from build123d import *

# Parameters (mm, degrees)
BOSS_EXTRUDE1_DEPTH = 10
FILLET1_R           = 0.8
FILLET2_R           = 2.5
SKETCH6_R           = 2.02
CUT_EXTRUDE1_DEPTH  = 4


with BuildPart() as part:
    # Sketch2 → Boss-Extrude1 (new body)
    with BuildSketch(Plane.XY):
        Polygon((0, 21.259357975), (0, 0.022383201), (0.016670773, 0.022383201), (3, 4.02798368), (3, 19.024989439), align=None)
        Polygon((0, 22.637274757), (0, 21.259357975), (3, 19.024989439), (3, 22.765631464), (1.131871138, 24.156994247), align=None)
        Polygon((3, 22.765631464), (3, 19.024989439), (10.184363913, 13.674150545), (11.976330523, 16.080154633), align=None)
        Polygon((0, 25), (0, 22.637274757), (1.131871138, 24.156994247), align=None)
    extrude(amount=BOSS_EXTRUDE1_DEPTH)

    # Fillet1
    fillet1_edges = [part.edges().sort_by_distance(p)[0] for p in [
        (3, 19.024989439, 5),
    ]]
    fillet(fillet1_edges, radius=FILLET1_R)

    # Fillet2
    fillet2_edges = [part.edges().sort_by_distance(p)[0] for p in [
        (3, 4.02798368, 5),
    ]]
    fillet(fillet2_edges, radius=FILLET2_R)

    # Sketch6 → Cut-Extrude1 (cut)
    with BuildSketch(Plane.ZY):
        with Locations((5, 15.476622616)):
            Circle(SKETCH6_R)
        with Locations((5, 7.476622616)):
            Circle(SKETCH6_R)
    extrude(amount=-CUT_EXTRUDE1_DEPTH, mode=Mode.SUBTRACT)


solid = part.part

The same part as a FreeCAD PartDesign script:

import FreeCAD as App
import Part
import Sketcher


def edges_at(feature, points):
    """Names of the edges that pass closest to the given points."""
    edges = feature.Shape.Edges
    near = lambda p: min(range(len(edges)), key=lambda i: edges[i].distToShape(Part.Vertex(*p))[0])
    return sorted({f"Edge{near(p) + 1}" for p in points})


def add_polygon(sketch, points):
    """Adds a closed chain of lines whose ends are joined by coincident constraints."""
    first, n = sketch.GeometryCount, len(points)
    for a, b in zip(points, points[1:] + points[:1]):
        sketch.addGeometry(Part.LineSegment(App.Vector(*a, 0), App.Vector(*b, 0)), False)
    for i in range(n):
        sketch.addConstraint(Sketcher.Constraint("Coincident", first + i, 2, first + (i + 1) % n, 1))

doc = App.newDocument("Part")
body = doc.addObject("PartDesign::Body", "Body")

# Sketch on XY plane
sketch1 = doc.addObject("Sketcher::SketchObject", "Sketch")
body.addObject(sketch1)
sketch1.AttachmentSupport = (doc.XY_Plane, [""])
sketch1.MapMode = "FlatFace"
add_polygon(sketch1, [(0, 0.022), (0.017, 0.022), (3, 4.028), (3, 19.025), (10.184, 13.674), (11.976, 16.08), (3, 22.766), (1.132, 24.157), (0, 25)])  # lines 0-8
sketch1.addConstraint([
    Sketcher.Constraint("Horizontal", 0),
    Sketcher.Constraint("Vertical", 2),
    Sketcher.Constraint("Vertical", 8),
    Sketcher.Constraint("PointOnObject", 7, 2, -2),
    Sketcher.Constraint("Perpendicular", 1, 3),
    Sketcher.Constraint("Perpendicular", 3, 4),
    Sketcher.Constraint("Perpendicular", 4, 5),
    Sketcher.Constraint("Parallel", 5, 6),
    Sketcher.Constraint("Parallel", 6, 7),
    Sketcher.Constraint("Vertical", 2, 2, 5, 2),
    Sketcher.Constraint("Distance", 4, 3.0),
    Sketcher.Constraint("DistanceX", -1, 1, 1, 2, 3.0),
    Sketcher.Constraint("DistanceY", -1, 1, 7, 2, 25.0),
    Sketcher.Constraint("DistanceX", 0, 1, 0, 2, 0.016671),
    Sketcher.Constraint("DistanceY", 0, 2, 1, 2, 4.0056),
    Sketcher.Constraint("Distance", 7, 1.411308),
    Sketcher.Constraint("DistanceY", 2, 1, 2, 2, 14.997006),
    Sketcher.Constraint("DistanceY", -1, 1, 3, 2, 13.674151),
])
pad1 = doc.addObject("PartDesign::Pad", "Pad")
body.addObject(pad1)
pad1.Profile = sketch1
pad1.Length = 10
doc.recompute()

fillet = doc.addObject("PartDesign::Fillet", "Fillet")
body.addObject(fillet)
fillet.Base = (pad1, edges_at(pad1, [(3, 19.025, 5)]))
fillet.Radius = 0.8
doc.recompute()

fillet2 = doc.addObject("PartDesign::Fillet", "Fillet001")
body.addObject(fillet2)
fillet2.Base = (fillet, edges_at(fillet, [(3, 4.028, 5)]))
fillet2.Radius = 2.5

# Sketch on YZ plane
sketch2 = doc.addObject("Sketcher::SketchObject", "Sketch001")
body.addObject(sketch2)
sketch2.AttachmentSupport = (doc.YZ_Plane, [""])
sketch2.MapMode = "FlatFace"
sketch2.addGeometry([
    Part.Circle(App.Vector(15.5, 5, 0), App.Vector(0, 0, 1), 2),
    Part.Circle(App.Vector(7.5, 5, 0), App.Vector(0, 0, 1), 2),
], False)
sketch2.addConstraint([
    Sketcher.Constraint("Equal", 0, 1),
    Sketcher.Constraint("Horizontal", 0, 3, 1, 3),
    Sketcher.Constraint("Diameter", 0, 4.04),
    Sketcher.Constraint("DistanceY", -1, 1, 0, 3, 5.0),
    Sketcher.Constraint("DistanceX", 1, 3, 0, 3, 8.0),
    Sketcher.Constraint("DistanceX", -1, 1, 0, 3, 15.476623),
])
pocket1 = doc.addObject("PartDesign::Pocket", "Pocket")
body.addObject(pocket1)
pocket1.Profile = sketch2
pocket1.Length = 4
pocket1.Reversed = True

doc.recompute()
